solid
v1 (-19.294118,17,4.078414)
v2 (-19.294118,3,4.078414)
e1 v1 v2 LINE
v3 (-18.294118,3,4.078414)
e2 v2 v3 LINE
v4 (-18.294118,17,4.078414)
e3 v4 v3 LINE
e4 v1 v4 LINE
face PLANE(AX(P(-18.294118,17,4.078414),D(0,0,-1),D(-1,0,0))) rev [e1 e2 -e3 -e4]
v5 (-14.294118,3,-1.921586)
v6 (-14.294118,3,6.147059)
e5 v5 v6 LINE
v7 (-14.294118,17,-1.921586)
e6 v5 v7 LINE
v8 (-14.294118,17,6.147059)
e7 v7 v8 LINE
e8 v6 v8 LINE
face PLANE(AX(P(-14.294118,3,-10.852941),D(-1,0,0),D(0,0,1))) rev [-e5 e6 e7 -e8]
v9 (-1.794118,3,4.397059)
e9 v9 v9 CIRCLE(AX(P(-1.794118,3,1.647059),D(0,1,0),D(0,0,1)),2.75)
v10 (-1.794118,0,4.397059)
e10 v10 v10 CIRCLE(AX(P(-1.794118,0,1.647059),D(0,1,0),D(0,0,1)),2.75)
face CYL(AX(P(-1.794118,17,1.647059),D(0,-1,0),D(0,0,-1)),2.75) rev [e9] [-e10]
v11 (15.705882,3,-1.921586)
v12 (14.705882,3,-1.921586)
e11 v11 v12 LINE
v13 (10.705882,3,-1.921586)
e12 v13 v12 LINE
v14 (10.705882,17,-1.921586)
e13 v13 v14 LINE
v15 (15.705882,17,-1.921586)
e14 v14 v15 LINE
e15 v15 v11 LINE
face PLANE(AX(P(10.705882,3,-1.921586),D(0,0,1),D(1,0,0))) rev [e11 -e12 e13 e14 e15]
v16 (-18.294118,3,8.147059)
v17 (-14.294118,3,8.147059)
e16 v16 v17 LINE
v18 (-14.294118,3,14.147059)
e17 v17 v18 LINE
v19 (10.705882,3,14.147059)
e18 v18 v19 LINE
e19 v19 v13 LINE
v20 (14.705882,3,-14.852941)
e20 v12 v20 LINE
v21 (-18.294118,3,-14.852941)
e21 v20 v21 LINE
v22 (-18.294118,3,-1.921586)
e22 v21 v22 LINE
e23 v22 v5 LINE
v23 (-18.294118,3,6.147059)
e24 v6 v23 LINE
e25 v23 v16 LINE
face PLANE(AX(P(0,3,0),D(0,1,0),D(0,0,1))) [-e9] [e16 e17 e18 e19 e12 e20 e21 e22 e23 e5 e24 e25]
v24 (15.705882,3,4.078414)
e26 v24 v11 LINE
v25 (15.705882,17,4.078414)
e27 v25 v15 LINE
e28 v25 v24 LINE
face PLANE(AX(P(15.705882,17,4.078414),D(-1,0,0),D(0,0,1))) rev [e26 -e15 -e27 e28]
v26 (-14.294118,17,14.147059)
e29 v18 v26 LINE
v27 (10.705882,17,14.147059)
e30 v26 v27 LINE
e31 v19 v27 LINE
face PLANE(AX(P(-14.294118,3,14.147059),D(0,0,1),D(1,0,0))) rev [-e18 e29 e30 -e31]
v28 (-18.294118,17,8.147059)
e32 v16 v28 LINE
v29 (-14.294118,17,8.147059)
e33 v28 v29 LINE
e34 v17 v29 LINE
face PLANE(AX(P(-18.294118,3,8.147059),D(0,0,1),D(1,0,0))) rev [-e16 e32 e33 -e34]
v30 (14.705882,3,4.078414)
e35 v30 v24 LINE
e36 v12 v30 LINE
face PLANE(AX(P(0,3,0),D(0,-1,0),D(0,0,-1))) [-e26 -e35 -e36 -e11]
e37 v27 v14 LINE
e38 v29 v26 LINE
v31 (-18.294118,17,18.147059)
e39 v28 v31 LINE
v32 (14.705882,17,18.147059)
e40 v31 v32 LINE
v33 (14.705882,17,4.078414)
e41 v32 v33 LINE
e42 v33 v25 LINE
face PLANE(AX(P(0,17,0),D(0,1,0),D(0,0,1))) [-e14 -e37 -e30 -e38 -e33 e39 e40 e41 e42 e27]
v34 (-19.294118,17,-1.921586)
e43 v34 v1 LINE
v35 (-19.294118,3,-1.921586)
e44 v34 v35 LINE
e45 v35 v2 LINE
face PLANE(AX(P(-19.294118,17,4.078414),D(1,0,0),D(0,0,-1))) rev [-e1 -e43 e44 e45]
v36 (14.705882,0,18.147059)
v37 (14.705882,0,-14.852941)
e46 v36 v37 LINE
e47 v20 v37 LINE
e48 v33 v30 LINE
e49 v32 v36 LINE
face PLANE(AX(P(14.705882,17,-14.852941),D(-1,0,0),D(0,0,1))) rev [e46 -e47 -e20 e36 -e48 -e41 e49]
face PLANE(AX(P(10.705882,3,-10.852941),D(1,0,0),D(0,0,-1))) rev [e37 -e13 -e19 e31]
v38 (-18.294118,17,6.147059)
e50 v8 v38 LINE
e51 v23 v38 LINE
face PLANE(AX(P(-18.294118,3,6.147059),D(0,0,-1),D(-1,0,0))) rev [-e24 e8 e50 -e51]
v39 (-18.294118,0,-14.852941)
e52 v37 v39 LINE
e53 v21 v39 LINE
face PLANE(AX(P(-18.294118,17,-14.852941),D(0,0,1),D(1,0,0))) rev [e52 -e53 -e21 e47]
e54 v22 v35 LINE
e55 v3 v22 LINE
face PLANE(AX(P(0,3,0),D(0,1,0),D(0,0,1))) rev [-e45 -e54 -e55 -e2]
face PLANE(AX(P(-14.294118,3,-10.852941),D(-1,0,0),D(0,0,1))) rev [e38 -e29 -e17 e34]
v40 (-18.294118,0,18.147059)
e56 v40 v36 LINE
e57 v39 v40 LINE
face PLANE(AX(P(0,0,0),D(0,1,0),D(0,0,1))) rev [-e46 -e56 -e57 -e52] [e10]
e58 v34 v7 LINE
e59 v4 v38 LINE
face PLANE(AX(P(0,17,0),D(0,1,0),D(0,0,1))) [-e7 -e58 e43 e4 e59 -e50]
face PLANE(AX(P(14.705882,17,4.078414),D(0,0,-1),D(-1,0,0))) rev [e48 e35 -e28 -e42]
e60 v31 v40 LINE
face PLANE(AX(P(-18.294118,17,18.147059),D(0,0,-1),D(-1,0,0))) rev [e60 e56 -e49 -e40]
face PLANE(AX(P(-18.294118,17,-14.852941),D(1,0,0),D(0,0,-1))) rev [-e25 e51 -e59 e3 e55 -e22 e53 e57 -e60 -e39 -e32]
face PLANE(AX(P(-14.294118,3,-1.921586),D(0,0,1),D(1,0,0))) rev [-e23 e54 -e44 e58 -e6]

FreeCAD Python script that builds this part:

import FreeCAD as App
import Part
import Sketcher

V = App.Vector


def add_polygon(sketch, points):
    """Adds a closed chain of lines whose ends are joined by coincident constraints."""
    first, n = sketch.GeometryCount, len(points)
    for a, b in zip(points, points[1:] + points[:1]):
        sketch.addGeometry(Part.LineSegment(App.Vector(*a, 0), App.Vector(*b, 0)), False)
    for i in range(n):
        sketch.addConstraint(Sketcher.Constraint("Coincident", first + i, 2, first + (i + 1) % n, 1))

doc = App.newDocument("Part")
params = doc.addObject("Spreadsheet::Sheet", "Params")
for row, (alias, value) in enumerate([
    ("sketch1_diameter", "5.5 mm"),
    ("sketch1_width", "33 mm"),
    ("pad1_length", "17 mm"),
    ("sketch2_width", "25 mm"),
    ("pocket1_length", "14 mm"),
    ("sketch3_width", "4 mm"),
    ("sketch3_height", "3 mm"),
    ("pocket2_length", "14 mm"),
    ("sketch4_height", "4 mm"),
    ("pocket3_length", "14 mm"),
    ("sketch5_width", "4 mm"),
    ("pocket4_length", "14 mm"),
    ("pocket5_length", "14 mm"),
    ("sketch7_width", "1 mm"),
    ("sketch7_height", "6 mm"),
    ("pad2_length", "14 mm"),
    ("sketch8_width", "4 mm"),
    ("sketch8_height", "2 mm"),
    ("pocket6_length", "14 mm"),
], start=1):
    params.set(f"A{row}", alias)
    params.set(f"B{row}", "=" + value)
    params.setAlias(f"B{row}", alias)

body = doc.addObject("PartDesign::Body", "Body")

sketch1 = body.newObject("Sketcher::SketchObject", "Sketch")
sketch1.AttachmentSupport = (doc.getObject("XZ_Plane"), [""])
sketch1.MapMode = "FlatFace"
add_polygon(sketch1, [(-18.294118, -14.852941), (-18.294118, 18.147059), (14.705882, 18.147059), (14.705882, -14.852941)])
sketch1.addGeometry(Part.Circle(V(-1.794118, 1.647059, 0), V(0, 0, 1), 2.75), False)
sketch1.addConstraint([
    Sketcher.Constraint("Vertical", 0),
    Sketcher.Constraint("Horizontal", 1),
    Sketcher.Constraint("Vertical", 2),
    Sketcher.Constraint("Horizontal", 3),
    Sketcher.Constraint("Equal", 3, 0),
    Sketcher.Constraint("Diameter", 4, 5.5),
    Sketcher.Constraint("DistanceX", 1, 1, 1, 2, 33.0),
    Sketcher.Constraint("DistanceX", 0, 2, 4, 3, 16.5),
    Sketcher.Constraint("DistanceY", 4, 3, 0, 2, 16.5),
    Sketcher.Constraint("DistanceY", -1, 1, 4, 3, 1.647059),
    Sketcher.Constraint("DistanceX", 4, 3, -1, 1, 1.794118),
])
sketch1.setExpression("Constraints[9]", "Params.sketch1_diameter")
sketch1.setExpression("Constraints[10]", "Params.sketch1_width")
pad1 = body.newObject("PartDesign::Pad", "Pad")
pad1.Profile = sketch1
pad1.setExpression("Length", "Params.pad1_length")
pad1.Reversed = True

sketch2 = body.newObject("Sketcher::SketchObject", "Sketch001")
sketch2.AttachmentSupport = (doc.getObject("XZ_Plane"), [""])
sketch2.MapMode = "FlatFace"
sketch2.AttachmentOffset = App.Placement(V(0, 0, -17), App.Rotation())
add_polygon(sketch2, [(-14.294118, -10.852941), (-14.294118, 14.147059), (10.705882, 14.147059), (10.705882, -10.852941)])
sketch2.addConstraint([
    Sketcher.Constraint("Vertical", 0),
    Sketcher.Constraint("Horizontal", 1),
    Sketcher.Constraint("Vertical", 2),
    Sketcher.Constraint("Horizontal", 3),
    Sketcher.Constraint("Equal", 3, 0),
    Sketcher.Constraint("DistanceX", 1, 1, 1, 2, 25.0),
    Sketcher.Constraint("DistanceY", -1, 1, 0, 2, 14.147059),
    Sketcher.Constraint("DistanceX", 0, 2, -1, 1, 14.294118),
])
sketch2.setExpression("Constraints[9]", "Params.sketch2_width")
pocket1 = body.newObject("PartDesign::Pocket", "Pocket")
pocket1.Profile = sketch2
pocket1.setExpression("Length", "Params.pocket1_length")
pocket1.Reversed = True

sketch3 = body.newObject("Sketcher::SketchObject", "Sketch002")
sketch3.AttachmentSupport = (doc.getObject("XZ_Plane"), [""])
sketch3.MapMode = "FlatFace"
sketch3.AttachmentOffset = App.Placement(V(0, 0, -17), App.Rotation())
add_polygon(sketch3, [(10.705882, -4.921586), (10.705882, -1.921586), (14.705882, -1.921586), (14.705882, -4.921586)])
add_polygon(sketch3, [(-18.294118, -4.921586), (-18.294118, -1.921586), (-14.294118, -1.921586), (-14.294118, -4.921586)])
sketch3.addConstraint([
    Sketcher.Constraint("Vertical", 0),
    Sketcher.Constraint("Horizontal", 1),
    Sketcher.Constraint("Vertical", 2),
    Sketcher.Constraint("Horizontal", 3),
    Sketcher.Constraint("Vertical", 4),
    Sketcher.Constraint("Horizontal", 5),
    Sketcher.Constraint("Vertical", 6),
    Sketcher.Constraint("Horizontal", 7),
    Sketcher.Constraint("Horizontal", 1, 2, 4, 2),
    Sketcher.Constraint("Horizontal", 3, 2, 6, 2),
    Sketcher.Constraint("Equal", 3, 5),
    Sketcher.Constraint("DistanceX", 1, 1, 1, 2, 4.0),
    Sketcher.Constraint("DistanceY", 0, 1, 0, 2, 3.0),
    Sketcher.Constraint("DistanceX", 4, 2, 0, 2, 29.0),
    Sketcher.Constraint("DistanceX", -1, 1, 0, 2, 10.705882),
    Sketcher.Constraint("DistanceY", 0, 2, -1, 1, 1.921586),
])
sketch3.setExpression("Constraints[19]", "Params.sketch3_width")
sketch3.setExpression("Constraints[20]", "Params.sketch3_height")
pocket2 = body.newObject("PartDesign::Pocket", "Pocket001")
pocket2.Profile = sketch3
pocket2.setExpression("Length", "Params.pocket2_length")
pocket2.Reversed = True

sketch4 = body.newObject("Sketcher::SketchObject", "Sketch003")
sketch4.AttachmentSupport = (doc.getObject("XZ_Plane"), [""])
sketch4.MapMode = "FlatFace"
sketch4.AttachmentOffset = App.Placement(V(0, 0, -17), App.Rotation())
add_polygon(sketch4, [(-4.521744, -14.852941), (-4.521744, -10.852941), (10.705882, -10.852941), (10.705882, -14.852941)])
sketch4.addConstraint([
    Sketcher.Constraint("Vertical", 0),
    Sketcher.Constraint("Horizontal", 1),
    Sketcher.Constraint("Vertical", 2),
    Sketcher.Constraint("Horizontal", 3),
    Sketcher.Constraint("DistanceY", 0, 1, 0, 2, 4.0),
    Sketcher.Constraint("DistanceX", 1, 1, 1, 2, 15.227627),
    Sketcher.Constraint("DistanceY", 0, 2, -1, 1, 10.852941),
    Sketcher.Constraint("DistanceX", 0, 2, -1, 1, 4.521744),
])
sketch4.setExpression("Constraints[8]", "Params.sketch4_height")
pocket3 = body.newObject("PartDesign::Pocket", "Pocket002")
pocket3.Profile = sketch4
pocket3.setExpression("Length", "Params.pocket3_length")
pocket3.Reversed = True

sketch5 = body.newObject("Sketcher::SketchObject", "Sketch004")
sketch5.AttachmentSupport = (doc.getObject("XZ_Plane"), [""])
sketch5.MapMode = "FlatFace"
sketch5.AttachmentOffset = App.Placement(V(0, 0, -17), App.Rotation())
add_polygon(sketch5, [(10.705882, -14.852941), (10.705882, -4.921586), (14.705882, -4.921586), (14.705882, -14.852941)])
sketch5.addConstraint([
    Sketcher.Constraint("Vertical", 0),
    Sketcher.Constraint("Horizontal", 1),
    Sketcher.Constraint("Vertical", 2),
    Sketcher.Constraint("Horizontal", 3),
    Sketcher.Constraint("DistanceX", 1, 1, 1, 2, 4.0),
    Sketcher.Constraint("DistanceY", 0, 1, 0, 2, 9.931355),
    Sketcher.Constraint("DistanceY", 2, 2, -1, 1, 14.852941),
    Sketcher.Constraint("DistanceX", -1, 1, 0, 2, 10.705882),
])
sketch5.setExpression("Constraints[8]", "Params.sketch5_width")
pocket4 = body.newObject("PartDesign::Pocket", "Pocket003")
pocket4.Profile = sketch5
pocket4.setExpression("Length", "Params.pocket4_length")
pocket4.Reversed = True

sketch6 = body.newObject("Sketcher::SketchObject", "Sketch005")
sketch6.AttachmentSupport = (doc.getObject("XZ_Plane"), [""])
sketch6.MapMode = "FlatFace"
sketch6.AttachmentOffset = App.Placement(V(0, 0, -17), App.Rotation())
add_polygon(sketch6, [(-26.036714, -16.317505), (-26.036714, -3.520573), (1.695532, -3.520573), (1.695532, -16.317505)])
sketch6.addConstraint([
    Sketcher.Constraint("Vertical", 0),
    Sketcher.Constraint("Horizontal", 1),
    Sketcher.Constraint("Vertical", 2),
    Sketcher.Constraint("Horizontal", 3),
    Sketcher.Constraint("DistanceY", 0, 1, 0, 2, 12.796932),
    Sketcher.Constraint("DistanceX", 1, 1, 1, 2, 27.732246),
    Sketcher.Constraint("DistanceX", 0, 2, -1, 1, 26.036714),
    Sketcher.Constraint("DistanceY", 0, 2, -1, 1, 3.520573),
])
pocket5 = body.newObject("PartDesign::Pocket", "Pocket004")
pocket5.Profile = sketch6
pocket5.setExpression("Length", "Params.pocket5_length")
pocket5.Reversed = True

sketch7 = body.newObject("Sketcher::SketchObject", "Sketch006")
sketch7.AttachmentSupport = (doc.getObject("XZ_Plane"), [""])
sketch7.MapMode = "FlatFace"
sketch7.AttachmentOffset = App.Placement(V(0, 0, -3), App.Rotation())
add_polygon(sketch7, [(14.705882, -1.921586), (14.705882, 4.078414), (15.705882, 4.078414), (15.705882, -1.921586)])
add_polygon(sketch7, [(-19.294118, -1.921586), (-19.294118, 4.078414), (-18.294118, 4.078414), (-18.294118, -1.921586)])
sketch7.addConstraint([
    Sketcher.Constraint("Vertical", 0),
    Sketcher.Constraint("Horizontal", 1),
    Sketcher.Constraint("Vertical", 2),
    Sketcher.Constraint("Horizontal", 3),
    Sketcher.Constraint("Vertical", 4),
    Sketcher.Constraint("Horizontal", 5),
    Sketcher.Constraint("Vertical", 6),
    Sketcher.Constraint("Horizontal", 7),
    Sketcher.Constraint("Horizontal", 1, 2, 4, 2),
    Sketcher.Constraint("Horizontal", 3, 2, 6, 2),
    Sketcher.Constraint("Equal", 3, 5),
    Sketcher.Constraint("DistanceX", 1, 1, 1, 2, 1.0),
    Sketcher.Constraint("DistanceY", 0, 1, 0, 2, 6.0),
    Sketcher.Constraint("DistanceX", 4, 2, 0, 2, 34.0),
    Sketcher.Constraint("DistanceX", -1, 1, 0, 2, 14.705882),
    Sketcher.Constraint("DistanceY", -1, 1, 0, 2, 4.078414),
])
sketch7.setExpression("Constraints[19]", "Params.sketch7_width")
sketch7.setExpression("Constraints[20]", "Params.sketch7_height")
pad2 = body.newObject("PartDesign::Pad", "Pad001")
pad2.Profile = sketch7
pad2.setExpression("Length", "Params.pad2_length")
pad2.Reversed = True

sketch8 = body.newObject("Sketcher::SketchObject", "Sketch007")
sketch8.AttachmentSupport = (doc.getObject("XZ_Plane"), [""])
sketch8.MapMode = "FlatFace"
sketch8.AttachmentOffset = App.Placement(V(0, 0, -17), App.Rotation())
add_polygon(sketch8, [(-18.294118, 6.147059), (-18.294118, 8.147059), (-14.294118, 8.147059), (-14.294118, 6.147059)])
sketch8.addConstraint([
    Sketcher.Constraint("Vertical", 0),
    Sketcher.Constraint("Horizontal", 1),
    Sketcher.Constraint("Vertical", 2),
    Sketcher.Constraint("Horizontal", 3),
    Sketcher.Constraint("DistanceX", 1, 1, 1, 2, 4.0),
    Sketcher.Constraint("DistanceY", 0, 1, 0, 2, 2.0),
    Sketcher.Constraint("DistanceY", -1, 1, 0, 2, 8.147059),
    Sketcher.Constraint("DistanceX", 0, 2, -1, 1, 18.294118),
])
sketch8.setExpression("Constraints[8]", "Params.sketch8_width")
sketch8.setExpression("Constraints[9]", "Params.sketch8_height")
pocket6 = body.newObject("PartDesign::Pocket", "Pocket005")
pocket6.Profile = sketch8
pocket6.setExpression("Length", "Params.pocket6_length")
pocket6.Reversed = True

doc.recompute()
